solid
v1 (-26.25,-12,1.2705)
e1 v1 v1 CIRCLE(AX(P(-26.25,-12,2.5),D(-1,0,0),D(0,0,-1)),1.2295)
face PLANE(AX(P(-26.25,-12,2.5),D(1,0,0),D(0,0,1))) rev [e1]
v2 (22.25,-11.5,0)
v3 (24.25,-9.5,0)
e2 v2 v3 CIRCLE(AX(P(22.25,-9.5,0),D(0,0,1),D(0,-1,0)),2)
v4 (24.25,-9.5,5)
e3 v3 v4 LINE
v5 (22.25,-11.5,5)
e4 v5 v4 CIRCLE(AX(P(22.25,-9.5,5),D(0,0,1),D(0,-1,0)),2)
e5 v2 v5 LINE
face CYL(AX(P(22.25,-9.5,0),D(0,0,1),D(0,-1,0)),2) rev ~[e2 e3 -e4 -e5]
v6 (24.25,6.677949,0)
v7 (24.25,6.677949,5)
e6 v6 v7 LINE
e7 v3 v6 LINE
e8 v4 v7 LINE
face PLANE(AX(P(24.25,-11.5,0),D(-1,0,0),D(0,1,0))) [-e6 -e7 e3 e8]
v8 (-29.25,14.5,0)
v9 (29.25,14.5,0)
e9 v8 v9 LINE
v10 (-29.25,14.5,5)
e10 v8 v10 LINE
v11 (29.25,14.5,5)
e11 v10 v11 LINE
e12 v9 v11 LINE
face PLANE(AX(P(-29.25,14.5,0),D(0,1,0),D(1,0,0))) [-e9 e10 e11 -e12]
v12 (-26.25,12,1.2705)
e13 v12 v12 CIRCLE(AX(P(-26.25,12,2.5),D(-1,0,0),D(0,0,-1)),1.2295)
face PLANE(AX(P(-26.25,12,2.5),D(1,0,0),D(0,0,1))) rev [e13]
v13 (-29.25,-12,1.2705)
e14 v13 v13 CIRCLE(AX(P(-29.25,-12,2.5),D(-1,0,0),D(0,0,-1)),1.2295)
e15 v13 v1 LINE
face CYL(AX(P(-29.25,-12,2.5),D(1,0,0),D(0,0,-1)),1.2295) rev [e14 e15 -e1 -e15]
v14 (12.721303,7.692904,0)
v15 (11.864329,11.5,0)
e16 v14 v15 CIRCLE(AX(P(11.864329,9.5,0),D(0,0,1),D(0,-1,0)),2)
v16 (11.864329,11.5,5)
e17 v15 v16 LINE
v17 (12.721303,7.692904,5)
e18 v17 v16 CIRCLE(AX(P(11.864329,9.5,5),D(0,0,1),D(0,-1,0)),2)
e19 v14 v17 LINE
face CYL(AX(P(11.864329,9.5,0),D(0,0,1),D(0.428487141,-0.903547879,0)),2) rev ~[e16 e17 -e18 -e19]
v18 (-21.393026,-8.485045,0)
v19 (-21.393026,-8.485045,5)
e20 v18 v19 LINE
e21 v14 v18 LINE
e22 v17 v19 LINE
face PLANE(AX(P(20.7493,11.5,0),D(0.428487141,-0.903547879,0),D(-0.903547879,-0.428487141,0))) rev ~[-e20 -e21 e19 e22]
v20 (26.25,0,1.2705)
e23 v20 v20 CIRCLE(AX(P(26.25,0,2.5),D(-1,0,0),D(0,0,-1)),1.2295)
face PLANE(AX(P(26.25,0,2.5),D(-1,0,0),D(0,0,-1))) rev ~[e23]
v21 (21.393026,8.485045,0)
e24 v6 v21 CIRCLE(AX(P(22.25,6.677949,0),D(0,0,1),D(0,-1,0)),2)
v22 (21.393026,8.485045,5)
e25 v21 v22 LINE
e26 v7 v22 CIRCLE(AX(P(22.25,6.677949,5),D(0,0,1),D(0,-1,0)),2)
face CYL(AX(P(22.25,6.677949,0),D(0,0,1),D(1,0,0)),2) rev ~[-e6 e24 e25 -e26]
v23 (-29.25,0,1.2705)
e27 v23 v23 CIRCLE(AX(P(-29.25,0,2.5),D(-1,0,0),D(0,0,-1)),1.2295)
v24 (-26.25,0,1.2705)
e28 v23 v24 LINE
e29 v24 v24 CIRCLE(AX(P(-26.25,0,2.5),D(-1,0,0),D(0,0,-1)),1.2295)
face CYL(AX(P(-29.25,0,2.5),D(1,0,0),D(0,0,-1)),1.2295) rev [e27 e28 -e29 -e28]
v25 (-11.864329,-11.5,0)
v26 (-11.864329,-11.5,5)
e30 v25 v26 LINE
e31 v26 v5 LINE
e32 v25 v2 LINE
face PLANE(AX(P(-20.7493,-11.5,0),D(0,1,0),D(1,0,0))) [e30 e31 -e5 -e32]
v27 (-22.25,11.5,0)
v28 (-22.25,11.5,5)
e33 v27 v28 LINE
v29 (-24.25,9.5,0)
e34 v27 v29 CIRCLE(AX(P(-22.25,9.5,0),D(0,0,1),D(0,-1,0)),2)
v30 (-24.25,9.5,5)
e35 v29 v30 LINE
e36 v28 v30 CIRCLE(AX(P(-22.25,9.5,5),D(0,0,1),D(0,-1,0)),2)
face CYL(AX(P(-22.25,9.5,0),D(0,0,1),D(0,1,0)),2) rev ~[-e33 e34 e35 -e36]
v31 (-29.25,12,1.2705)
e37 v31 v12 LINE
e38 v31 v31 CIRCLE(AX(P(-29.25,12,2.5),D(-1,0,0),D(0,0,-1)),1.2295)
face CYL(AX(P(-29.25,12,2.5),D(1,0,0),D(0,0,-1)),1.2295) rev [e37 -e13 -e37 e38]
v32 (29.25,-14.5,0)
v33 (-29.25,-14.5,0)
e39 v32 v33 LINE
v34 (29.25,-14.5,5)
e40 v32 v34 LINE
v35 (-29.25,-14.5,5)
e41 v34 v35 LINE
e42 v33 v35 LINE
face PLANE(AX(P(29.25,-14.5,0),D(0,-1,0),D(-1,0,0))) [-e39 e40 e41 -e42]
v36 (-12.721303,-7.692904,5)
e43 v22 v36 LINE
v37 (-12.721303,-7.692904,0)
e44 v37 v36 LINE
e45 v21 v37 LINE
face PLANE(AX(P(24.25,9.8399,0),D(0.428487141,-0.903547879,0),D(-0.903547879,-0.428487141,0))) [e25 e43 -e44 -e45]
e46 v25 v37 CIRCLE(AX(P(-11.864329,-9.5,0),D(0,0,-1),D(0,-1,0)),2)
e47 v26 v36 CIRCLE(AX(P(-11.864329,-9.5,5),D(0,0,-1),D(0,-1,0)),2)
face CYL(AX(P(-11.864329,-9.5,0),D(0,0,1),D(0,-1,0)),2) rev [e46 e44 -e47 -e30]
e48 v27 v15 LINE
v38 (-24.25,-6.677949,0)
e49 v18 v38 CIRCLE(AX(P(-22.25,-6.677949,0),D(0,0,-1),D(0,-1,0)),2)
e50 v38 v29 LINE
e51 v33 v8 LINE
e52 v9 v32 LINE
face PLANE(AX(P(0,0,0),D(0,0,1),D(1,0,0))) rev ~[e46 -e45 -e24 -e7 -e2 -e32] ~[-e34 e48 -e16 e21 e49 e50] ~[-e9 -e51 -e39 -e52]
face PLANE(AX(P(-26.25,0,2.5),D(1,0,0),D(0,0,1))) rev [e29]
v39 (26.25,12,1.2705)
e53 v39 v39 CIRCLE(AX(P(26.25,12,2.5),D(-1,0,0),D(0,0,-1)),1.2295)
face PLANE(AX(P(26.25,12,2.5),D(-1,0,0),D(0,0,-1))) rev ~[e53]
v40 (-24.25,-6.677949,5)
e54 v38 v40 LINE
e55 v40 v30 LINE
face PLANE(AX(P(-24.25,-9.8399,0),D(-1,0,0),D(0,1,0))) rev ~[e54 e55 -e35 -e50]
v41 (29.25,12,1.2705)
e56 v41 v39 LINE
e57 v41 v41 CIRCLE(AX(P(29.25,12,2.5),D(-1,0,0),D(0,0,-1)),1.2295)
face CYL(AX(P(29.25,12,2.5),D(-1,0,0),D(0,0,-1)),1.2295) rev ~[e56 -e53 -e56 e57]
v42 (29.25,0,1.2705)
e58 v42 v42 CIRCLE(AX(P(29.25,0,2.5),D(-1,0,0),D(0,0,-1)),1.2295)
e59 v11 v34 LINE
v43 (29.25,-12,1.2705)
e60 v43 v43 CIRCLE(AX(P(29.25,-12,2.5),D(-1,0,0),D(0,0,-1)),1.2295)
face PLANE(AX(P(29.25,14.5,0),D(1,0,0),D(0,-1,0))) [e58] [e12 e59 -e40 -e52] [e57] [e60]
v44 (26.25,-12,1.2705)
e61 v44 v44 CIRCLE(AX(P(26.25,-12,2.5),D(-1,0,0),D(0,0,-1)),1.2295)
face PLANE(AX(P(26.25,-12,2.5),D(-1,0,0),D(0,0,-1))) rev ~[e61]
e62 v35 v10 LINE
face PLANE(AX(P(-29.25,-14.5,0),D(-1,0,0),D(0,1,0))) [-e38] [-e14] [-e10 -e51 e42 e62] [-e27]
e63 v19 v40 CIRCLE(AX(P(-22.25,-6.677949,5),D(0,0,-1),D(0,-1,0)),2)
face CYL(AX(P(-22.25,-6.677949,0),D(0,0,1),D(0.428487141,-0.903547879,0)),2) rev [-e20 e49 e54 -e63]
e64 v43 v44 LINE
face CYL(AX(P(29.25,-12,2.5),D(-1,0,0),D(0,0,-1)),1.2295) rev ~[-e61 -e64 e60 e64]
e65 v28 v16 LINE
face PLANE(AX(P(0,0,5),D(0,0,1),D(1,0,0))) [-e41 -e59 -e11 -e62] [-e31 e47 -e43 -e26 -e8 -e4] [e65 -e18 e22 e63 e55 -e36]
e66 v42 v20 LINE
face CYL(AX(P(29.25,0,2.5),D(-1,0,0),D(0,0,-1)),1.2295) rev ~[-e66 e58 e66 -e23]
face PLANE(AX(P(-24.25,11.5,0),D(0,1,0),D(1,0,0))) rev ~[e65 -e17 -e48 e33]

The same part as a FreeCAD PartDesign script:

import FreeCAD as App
import Part
import Sketcher


def edges_at(feature, points):
    """Names of the edges that pass closest to the given points."""
    edges = feature.Shape.Edges
    near = lambda p: min(range(len(edges)), key=lambda i: edges[i].distToShape(Part.Vertex(*p))[0])
    return sorted({f"Edge{near(p) + 1}" for p in points})

doc = App.newDocument("Part")
body = doc.addObject("PartDesign::Body", "Body")

# Sketch on XY plane
sketch1 = doc.addObject("Sketcher::SketchObject", "Sketch")
body.addObject(sketch1)
sketch1.AttachmentSupport = (doc.XY_Plane, [""])
sketch1.MapMode = "FlatFace"
sketch1.addGeometry(Part.LineSegment(App.Vector(29.25, 14.5, 0), App.Vector(-29.25, 14.5, 0)), False)
sketch1.addGeometry(Part.LineSegment(App.Vector(-29.25, 14.5, 0), App.Vector(-29.25, -14.5, 0)), False)
sketch1.addGeometry(Part.LineSegment(App.Vector(-29.25, -14.5, 0), App.Vector(29.25, -14.5, 0)), False)
sketch1.addGeometry(Part.LineSegment(App.Vector(29.25, -14.5, 0), App.Vector(29.25, 14.5, 0)), False)
sketch1.addGeometry(Part.LineSegment(App.Vector(24.25, -11.5, 0), App.Vector(-20.7493, -11.5, 0)), False)
sketch1.addGeometry(Part.LineSegment(App.Vector(-20.7493, -11.5, 0), App.Vector(24.25, 9.8399, 0)), False)
sketch1.addGeometry(Part.LineSegment(App.Vector(24.25, 9.8399, 0), App.Vector(24.25, -11.5, 0)), False)
sketch1.addGeometry(Part.LineSegment(App.Vector(20.7493, 11.5, 0), App.Vector(-24.25, -9.8399, 0)), False)
sketch1.addGeometry(Part.LineSegment(App.Vector(-24.25, -9.8399, 0), App.Vector(-24.25, 11.5, 0)), False)
sketch1.addGeometry(Part.LineSegment(App.Vector(-24.25, 11.5, 0), App.Vector(20.7493, 11.5, 0)), False)
sketch1.addConstraint(Sketcher.Constraint("Coincident", 0, 2, 1, 1))
sketch1.addConstraint(Sketcher.Constraint("Coincident", 1, 2, 2, 1))
sketch1.addConstraint(Sketcher.Constraint("Coincident", 2, 2, 3, 1))
sketch1.addConstraint(Sketcher.Constraint("Coincident", 3, 2, 0, 1))
sketch1.addConstraint(Sketcher.Constraint("Coincident", 4, 2, 5, 1))
sketch1.addConstraint(Sketcher.Constraint("Coincident", 5, 2, 6, 1))
sketch1.addConstraint(Sketcher.Constraint("Coincident", 6, 2, 4, 1))
sketch1.addConstraint(Sketcher.Constraint("Coincident", 7, 2, 8, 1))
sketch1.addConstraint(Sketcher.Constraint("Coincident", 8, 2, 9, 1))
sketch1.addConstraint(Sketcher.Constraint("Coincident", 9, 2, 7, 1))
sketch1.addConstraint(Sketcher.Constraint("Horizontal", 0))
sketch1.addConstraint(Sketcher.Constraint("Vertical", 1))
sketch1.addConstraint(Sketcher.Constraint("Horizontal", 2))
sketch1.addConstraint(Sketcher.Constraint("Vertical", 3))
sketch1.addConstraint(Sketcher.Constraint("Horizontal", 4))
sketch1.addConstraint(Sketcher.Constraint("Vertical", 6))
sketch1.addConstraint(Sketcher.Constraint("Vertical", 8))
sketch1.addConstraint(Sketcher.Constraint("Horizontal", 9))
sketch1.addConstraint(Sketcher.Constraint("Symmetric", 0, 2, 2, 2, -1, 1))
sketch1.addConstraint(Sketcher.Constraint("Symmetric", 5, 2, 7, 2, -1, 1))
sketch1.addConstraint(Sketcher.Constraint("Symmetric", 4, 2, 9, 2, -1, 1))
sketch1.addConstraint(Sketcher.Constraint("DistanceX", 0, 2, 0, 1, 58.5))
sketch1.addConstraint(Sketcher.Constraint("DistanceY", 1, 2, 4, 2, 3.0))
sketch1.addConstraint(Sketcher.Constraint("DistanceX", 5, 2, 3, 2, 5.0))
sketch1.addConstraint(Sketcher.Constraint("DistanceY", 1, 2, 1, 1, 29.0))
sketch1.addConstraint(Sketcher.Constraint("DistanceY", 6, 2, 6, 1, 21.34))
sketch1.addConstraint(Sketcher.Constraint("Distance", 5, 49.803))
pad1 = doc.addObject("PartDesign::Pad", "Pad")
body.addObject(pad1)
pad1.Profile = sketch1
pad1.Length = 5

# Sketch on YZ plane
sketch2 = doc.addObject("Sketcher::SketchObject", "Sketch001")
body.addObject(sketch2)
sketch2.AttachmentSupport = (doc.YZ_Plane, [""])
sketch2.MapMode = "FlatFace"
sketch2.AttachmentOffset = App.Placement(App.Vector(0, 0, 29.25), App.Rotation())
sketch2.addGeometry(Part.Circle(App.Vector(-12, 2.5, 0), App.Vector(0, 0, 1), 1.2295), False)
sketch2.addGeometry(Part.Circle(App.Vector(0, 2.5, 0), App.Vector(0, 0, 1), 1.2295), False)
sketch2.addGeometry(Part.Circle(App.Vector(12, 2.5, 0), App.Vector(0, 0, 1), 1.2295), False)
sketch2.addConstraint(Sketcher.Constraint("Equal", 0, 1))
sketch2.addConstraint(Sketcher.Constraint("Equal", 1, 2))
sketch2.addConstraint(Sketcher.Constraint("Symmetric", 0, 3, 2, 3, -2))
sketch2.addConstraint(Sketcher.Constraint("PointOnObject", 1, 3, -2))
sketch2.addConstraint(Sketcher.Constraint("Horizontal", 0, 3, 1, 3))
sketch2.addConstraint(Sketcher.Constraint("Diameter", 0, 2.459))
sketch2.addConstraint(Sketcher.Constraint("DistanceX", 0, 3, -1, 1, 12.0))
sketch2.addConstraint(Sketcher.Constraint("DistanceY", -1, 1, 0, 3, 2.5))
doc.recompute()
hole = doc.addObject("PartDesign::Hole", "Hole")
body.addObject(hole)
hole.Profile = sketch2
hole.ThreadType = "None"
hole.Diameter = 2.459
hole.DepthType = "Dimension"
hole.Depth = 3
hole.DrillPoint = "Flat"
doc.recompute()

mirrored = doc.addObject("PartDesign::Mirrored", "Mirrored")
body.addObject(mirrored)
mirrored.Originals = [hole]
mirrored.MirrorPlane = (doc.YZ_Plane, [""])
body.Tip = mirrored
doc.recompute()

fillet = doc.addObject("PartDesign::Fillet", "Fillet")
body.addObject(fillet)
fillet.Base = (mirrored, edges_at(mirrored, [
    (-20.749, -11.5, 2.5),
    (-24.25, -9.84, 2.5),
    (24.25, 9.84, 2.5),
    (24.25, -11.5, 2.5),
    (-24.25, 11.5, 2.5),
    (20.749, 11.5, 2.5),
]))
fillet.Radius = 2

doc.recompute()
